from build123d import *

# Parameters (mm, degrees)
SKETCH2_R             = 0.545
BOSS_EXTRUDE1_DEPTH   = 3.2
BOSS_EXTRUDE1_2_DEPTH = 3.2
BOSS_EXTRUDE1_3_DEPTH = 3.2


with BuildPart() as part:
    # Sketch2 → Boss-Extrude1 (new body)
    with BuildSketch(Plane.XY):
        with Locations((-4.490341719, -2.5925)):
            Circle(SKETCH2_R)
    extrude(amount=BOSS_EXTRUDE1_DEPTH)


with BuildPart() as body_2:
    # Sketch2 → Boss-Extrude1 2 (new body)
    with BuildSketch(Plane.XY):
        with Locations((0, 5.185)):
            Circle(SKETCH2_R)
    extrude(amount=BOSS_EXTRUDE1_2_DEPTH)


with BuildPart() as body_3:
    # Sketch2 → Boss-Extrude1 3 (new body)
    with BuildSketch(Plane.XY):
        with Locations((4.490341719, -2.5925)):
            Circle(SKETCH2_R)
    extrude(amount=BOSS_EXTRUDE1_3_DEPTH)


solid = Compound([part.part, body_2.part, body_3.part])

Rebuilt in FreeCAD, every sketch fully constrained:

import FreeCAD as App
import Part
import Sketcher
from FreeCAD import Vector

doc = App.newDocument("Part")
body = doc.addObject("PartDesign::Body", "Body")

# Sketch on XY plane
sketch1 = body.newObject("Sketcher::SketchObject", "Sketch")
sketch1.AttachmentSupport = (doc.getObject("XY_Plane"), [""])
sketch1.MapMode = "FlatFace"
sketch1.addGeometry(Part.Circle(Vector(-4.490342, -2.5925, 0), Vector(0, 0, 1), 0.545), False)
sketch1.addConstraint(Sketcher.Constraint("Diameter", 0, 1.09))
sketch1.addConstraint(Sketcher.Constraint("DistanceY", 0, 3, -1, 1, 2.5925))
sketch1.addConstraint(Sketcher.Constraint("DistanceX", 0, 3, -1, 1, 4.490342))
pad1 = body.newObject("PartDesign::Pad", "Pad")
pad1.Profile = sketch1
pad1.Length = 3.2
body2 = doc.addObject("PartDesign::Body", "Body001")

# Sketch on XY plane
sketch2 = body2.newObject("Sketcher::SketchObject", "Sketch001")
sketch2.AttachmentSupport = (doc.getObject("XY_Plane001"), [""])
sketch2.MapMode = "FlatFace"
sketch2.addGeometry(Part.Circle(Vector(0, 5.185, 0), Vector(0, 0, 1), 0.545), False)
sketch2.addConstraint(Sketcher.Constraint("PointOnObject", 0, 3, -2))
sketch2.addConstraint(Sketcher.Constraint("Diameter", 0, 1.09))
sketch2.addConstraint(Sketcher.Constraint("DistanceY", -1, 1, 0, 3, 5.185))
pad2 = body2.newObject("PartDesign::Pad", "Pad001")
pad2.Profile = sketch2
pad2.Length = 3.2
body3 = doc.addObject("PartDesign::Body", "Body002")

# Sketch on XY plane
sketch3 = body3.newObject("Sketcher::SketchObject", "Sketch002")
sketch3.AttachmentSupport = (doc.getObject("XY_Plane002"), [""])
sketch3.MapMode = "FlatFace"
sketch3.addGeometry(Part.Circle(Vector(4.490342, -2.5925, 0), Vector(0, 0, 1), 0.545), False)
sketch3.addConstraint(Sketcher.Constraint("Diameter", 0, 1.09))
sketch3.addConstraint(Sketcher.Constraint("DistanceY", 0, 3, -1, 1, 2.5925))
sketch3.addConstraint(Sketcher.Constraint("DistanceX", -1, 1, 0, 3, 4.490342))
pad3 = body3.newObject("PartDesign::Pad", "Pad002")
pad3.Profile = sketch3
pad3.Length = 3.2

doc.recompute()
